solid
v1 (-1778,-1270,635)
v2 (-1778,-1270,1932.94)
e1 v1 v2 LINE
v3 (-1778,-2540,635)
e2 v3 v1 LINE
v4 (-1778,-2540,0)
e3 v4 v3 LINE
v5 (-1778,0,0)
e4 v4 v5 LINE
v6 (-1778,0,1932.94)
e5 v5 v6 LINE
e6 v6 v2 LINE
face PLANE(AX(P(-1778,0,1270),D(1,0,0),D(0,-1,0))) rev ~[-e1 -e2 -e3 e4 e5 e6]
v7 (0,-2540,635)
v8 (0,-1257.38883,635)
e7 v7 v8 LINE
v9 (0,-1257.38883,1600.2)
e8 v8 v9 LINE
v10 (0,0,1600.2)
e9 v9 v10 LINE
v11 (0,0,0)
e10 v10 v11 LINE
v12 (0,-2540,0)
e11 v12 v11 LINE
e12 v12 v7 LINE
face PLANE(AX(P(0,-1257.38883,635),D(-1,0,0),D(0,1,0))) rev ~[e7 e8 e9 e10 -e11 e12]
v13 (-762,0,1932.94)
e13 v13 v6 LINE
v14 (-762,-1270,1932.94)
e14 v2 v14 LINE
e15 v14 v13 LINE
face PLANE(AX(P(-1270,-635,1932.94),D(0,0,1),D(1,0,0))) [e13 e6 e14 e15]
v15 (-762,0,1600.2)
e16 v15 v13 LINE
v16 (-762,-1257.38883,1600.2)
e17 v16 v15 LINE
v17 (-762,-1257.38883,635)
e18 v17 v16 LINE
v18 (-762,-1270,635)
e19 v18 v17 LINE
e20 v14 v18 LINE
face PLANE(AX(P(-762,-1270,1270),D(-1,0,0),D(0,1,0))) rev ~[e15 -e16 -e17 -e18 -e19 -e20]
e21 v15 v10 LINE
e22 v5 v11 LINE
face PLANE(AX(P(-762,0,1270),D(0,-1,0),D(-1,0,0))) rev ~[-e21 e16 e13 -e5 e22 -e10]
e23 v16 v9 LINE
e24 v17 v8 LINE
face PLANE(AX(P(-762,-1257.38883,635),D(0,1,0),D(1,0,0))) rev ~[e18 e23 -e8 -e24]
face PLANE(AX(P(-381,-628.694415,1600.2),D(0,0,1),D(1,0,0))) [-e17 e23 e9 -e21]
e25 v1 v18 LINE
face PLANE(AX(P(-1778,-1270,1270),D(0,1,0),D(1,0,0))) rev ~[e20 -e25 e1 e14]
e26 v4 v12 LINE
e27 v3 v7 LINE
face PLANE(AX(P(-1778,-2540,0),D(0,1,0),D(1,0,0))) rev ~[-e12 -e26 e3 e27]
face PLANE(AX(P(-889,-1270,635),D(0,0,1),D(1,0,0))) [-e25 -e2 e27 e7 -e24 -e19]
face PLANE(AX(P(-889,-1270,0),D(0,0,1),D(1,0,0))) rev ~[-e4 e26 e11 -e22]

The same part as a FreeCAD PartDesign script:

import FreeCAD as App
import Part
import Sketcher

V = App.Vector
Q = App.Units.Quantity

doc = App.newDocument("Part")
body = doc.addObject("PartDesign::Body", "Body")

# Sketch on XY plane
sketch1 = body.newObject("Sketcher::SketchObject", "Sketch")
sketch1.AttachmentSupport = (doc.getObject("XY_Plane"), [""])
sketch1.MapMode = "FlatFace"
sketch1.addGeometry(Part.LineSegment(V(-1778, 0, 0), V(-1778, -2540, 0)), False)
sketch1.addGeometry(Part.LineSegment(V(-1778, -2540, 0), V(0, -2540, 0)), False)
sketch1.addGeometry(Part.LineSegment(V(0, -2540, 0), V(0, 0, 0)), False)
sketch1.addGeometry(Part.LineSegment(V(0, 0, 0), V(-1778, 0, 0)), False)
sketch1.addConstraint(Sketcher.Constraint("Coincident", 0, 2, 1, 1))
sketch1.addConstraint(Sketcher.Constraint("Coincident", 1, 2, 2, 1))
sketch1.addConstraint(Sketcher.Constraint("Coincident", 2, 2, 3, 1))
sketch1.addConstraint(Sketcher.Constraint("Coincident", 3, 2, 0, 1))
sketch1.addConstraint(Sketcher.Constraint("Vertical", 0))
sketch1.addConstraint(Sketcher.Constraint("Horizontal", 1))
sketch1.addConstraint(Sketcher.Constraint("Vertical", 2))
sketch1.addConstraint(Sketcher.Constraint("Horizontal", 3))
sketch1.addConstraint(Sketcher.Constraint("Coincident", 2, 2, -1, 1))
sketch1.addConstraint(Sketcher.Constraint("DistanceX", 1, 1, 1, 2, Q("70 in")))
sketch1.addConstraint(Sketcher.Constraint("DistanceY", 0, 2, 0, 1, Q("100 in")))
pad1 = body.newObject("PartDesign::Pad", "Pad")
pad1.Profile = sketch1
pad1.Length = Q("25 in")

# Sketch on XY plane
sketch2 = body.newObject("Sketcher::SketchObject", "Sketch001")
sketch2.AttachmentSupport = (doc.getObject("XY_Plane"), [""])
sketch2.MapMode = "FlatFace"
sketch2.AttachmentOffset = App.Placement(V(0, 0, 25 * 25.4), App.Rotation())
sketch2.addGeometry(Part.LineSegment(V(-1778, 0, 0), V(-1778, -1270, 0)), False)
sketch2.addGeometry(Part.LineSegment(V(-1778, -1270, 0), V(-762, -1270, 0)), False)
sketch2.addGeometry(Part.LineSegment(V(-762, -1270, 0), V(-762, 0, 0)), False)
sketch2.addGeometry(Part.LineSegment(V(-762, 0, 0), V(-1778, 0, 0)), False)
sketch2.addConstraint(Sketcher.Constraint("Coincident", 0, 2, 1, 1))
sketch2.addConstraint(Sketcher.Constraint("Coincident", 1, 2, 2, 1))
sketch2.addConstraint(Sketcher.Constraint("Coincident", 2, 2, 3, 1))
sketch2.addConstraint(Sketcher.Constraint("Coincident", 3, 2, 0, 1))
sketch2.addConstraint(Sketcher.Constraint("Vertical", 0))
sketch2.addConstraint(Sketcher.Constraint("Horizontal", 1))
sketch2.addConstraint(Sketcher.Constraint("Vertical", 2))
sketch2.addConstraint(Sketcher.Constraint("Horizontal", 3))
sketch2.addConstraint(Sketcher.Constraint("PointOnObject", 2, 2, -1))
sketch2.addConstraint(Sketcher.Constraint("DistanceX", 1, 1, 1, 2, Q("40 in")))
sketch2.addConstraint(Sketcher.Constraint("DistanceY", 0, 2, 0, 1, Q("50 in")))
sketch2.addConstraint(Sketcher.Constraint("DistanceX", 0, 2, -1, 1, Q("70 in")))
pad2 = body.newObject("PartDesign::Pad", "Pad001")
pad2.Profile = sketch2
pad2.Length = Q("25 in")

# Sketch on XY plane
sketch3 = body.newObject("Sketcher::SketchObject", "Sketch002")
sketch3.AttachmentSupport = (doc.getObject("XY_Plane"), [""])
sketch3.MapMode = "FlatFace"
sketch3.AttachmentOffset = App.Placement(V(0, 0, 25 * 25.4), App.Rotation())
sketch3.addGeometry(Part.LineSegment(V(-762, 0, 0), V(-762, -1257, 0)), False)
sketch3.addGeometry(Part.LineSegment(V(-762, -1257, 0), V(0, -1257, 0)), False)
sketch3.addGeometry(Part.LineSegment(V(0, -1257, 0), V(0, 0, 0)), False)
sketch3.addGeometry(Part.LineSegment(V(0, 0, 0), V(-762, 0, 0)), False)
sketch3.addConstraint(Sketcher.Constraint("Coincident", 0, 2, 1, 1))
sketch3.addConstraint(Sketcher.Constraint("Coincident", 1, 2, 2, 1))
sketch3.addConstraint(Sketcher.Constraint("Coincident", 2, 2, 3, 1))
sketch3.addConstraint(Sketcher.Constraint("Coincident", 3, 2, 0, 1))
sketch3.addConstraint(Sketcher.Constraint("Vertical", 0))
sketch3.addConstraint(Sketcher.Constraint("Horizontal", 1))
sketch3.addConstraint(Sketcher.Constraint("Vertical", 2))
sketch3.addConstraint(Sketcher.Constraint("Horizontal", 3))
sketch3.addConstraint(Sketcher.Constraint("Coincident", 2, 2, -1, 1))
sketch3.addConstraint(Sketcher.Constraint("DistanceX", 1, 1, 1, 2, Q("30 in")))
sketch3.addConstraint(Sketcher.Constraint("DistanceY", 0, 2, 0, 1, Q("1257.38883 mm")))
pad3 = body.newObject("PartDesign::Pad", "Pad002")
pad3.Profile = sketch3
pad3.Length = Q("38 in")

# Sketch on XY plane
sketch4 = body.newObject("Sketcher::SketchObject", "Sketch003")
sketch4.AttachmentSupport = (doc.getObject("XY_Plane"), [""])
sketch4.MapMode = "FlatFace"
sketch4.AttachmentOffset = App.Placement(V(0, 0, 50 * 25.4), App.Rotation())
sketch4.addGeometry(Part.LineSegment(V(-762, 0, 0), V(-1778, 0, 0)), False)
sketch4.addGeometry(Part.LineSegment(V(-1778, 0, 0), V(-1778, -1270, 0)), False)
sketch4.addGeometry(Part.LineSegment(V(-1778, -1270, 0), V(-762, -1270, 0)), False)
sketch4.addGeometry(Part.LineSegment(V(-762, -1270, 0), V(-762, 0, 0)), False)
sketch4.addConstraint(Sketcher.Constraint("Coincident", 0, 2, 1, 1))
sketch4.addConstraint(Sketcher.Constraint("Coincident", 1, 2, 2, 1))
sketch4.addConstraint(Sketcher.Constraint("Coincident", 2, 2, 3, 1))
sketch4.addConstraint(Sketcher.Constraint("Coincident", 3, 2, 0, 1))
sketch4.addConstraint(Sketcher.Constraint("Horizontal", 0))
sketch4.addConstraint(Sketcher.Constraint("Vertical", 1))
sketch4.addConstraint(Sketcher.Constraint("Horizontal", 2))
sketch4.addConstraint(Sketcher.Constraint("Vertical", 3))
sketch4.addConstraint(Sketcher.Constraint("PointOnObject", 0, 2, -1))
sketch4.addConstraint(Sketcher.Constraint("DistanceX", 0, 2, 0, 1, Q("40 in")))
sketch4.addConstraint(Sketcher.Constraint("DistanceY", 1, 2, 1, 1, Q("50 in")))
sketch4.addConstraint(Sketcher.Constraint("DistanceX", 0, 2, -1, 1, Q("70 in")))
pad4 = body.newObject("PartDesign::Pad", "Pad003")
pad4.Profile = sketch4
pad4.Length = Q("26.1 in")

doc.recompute()
